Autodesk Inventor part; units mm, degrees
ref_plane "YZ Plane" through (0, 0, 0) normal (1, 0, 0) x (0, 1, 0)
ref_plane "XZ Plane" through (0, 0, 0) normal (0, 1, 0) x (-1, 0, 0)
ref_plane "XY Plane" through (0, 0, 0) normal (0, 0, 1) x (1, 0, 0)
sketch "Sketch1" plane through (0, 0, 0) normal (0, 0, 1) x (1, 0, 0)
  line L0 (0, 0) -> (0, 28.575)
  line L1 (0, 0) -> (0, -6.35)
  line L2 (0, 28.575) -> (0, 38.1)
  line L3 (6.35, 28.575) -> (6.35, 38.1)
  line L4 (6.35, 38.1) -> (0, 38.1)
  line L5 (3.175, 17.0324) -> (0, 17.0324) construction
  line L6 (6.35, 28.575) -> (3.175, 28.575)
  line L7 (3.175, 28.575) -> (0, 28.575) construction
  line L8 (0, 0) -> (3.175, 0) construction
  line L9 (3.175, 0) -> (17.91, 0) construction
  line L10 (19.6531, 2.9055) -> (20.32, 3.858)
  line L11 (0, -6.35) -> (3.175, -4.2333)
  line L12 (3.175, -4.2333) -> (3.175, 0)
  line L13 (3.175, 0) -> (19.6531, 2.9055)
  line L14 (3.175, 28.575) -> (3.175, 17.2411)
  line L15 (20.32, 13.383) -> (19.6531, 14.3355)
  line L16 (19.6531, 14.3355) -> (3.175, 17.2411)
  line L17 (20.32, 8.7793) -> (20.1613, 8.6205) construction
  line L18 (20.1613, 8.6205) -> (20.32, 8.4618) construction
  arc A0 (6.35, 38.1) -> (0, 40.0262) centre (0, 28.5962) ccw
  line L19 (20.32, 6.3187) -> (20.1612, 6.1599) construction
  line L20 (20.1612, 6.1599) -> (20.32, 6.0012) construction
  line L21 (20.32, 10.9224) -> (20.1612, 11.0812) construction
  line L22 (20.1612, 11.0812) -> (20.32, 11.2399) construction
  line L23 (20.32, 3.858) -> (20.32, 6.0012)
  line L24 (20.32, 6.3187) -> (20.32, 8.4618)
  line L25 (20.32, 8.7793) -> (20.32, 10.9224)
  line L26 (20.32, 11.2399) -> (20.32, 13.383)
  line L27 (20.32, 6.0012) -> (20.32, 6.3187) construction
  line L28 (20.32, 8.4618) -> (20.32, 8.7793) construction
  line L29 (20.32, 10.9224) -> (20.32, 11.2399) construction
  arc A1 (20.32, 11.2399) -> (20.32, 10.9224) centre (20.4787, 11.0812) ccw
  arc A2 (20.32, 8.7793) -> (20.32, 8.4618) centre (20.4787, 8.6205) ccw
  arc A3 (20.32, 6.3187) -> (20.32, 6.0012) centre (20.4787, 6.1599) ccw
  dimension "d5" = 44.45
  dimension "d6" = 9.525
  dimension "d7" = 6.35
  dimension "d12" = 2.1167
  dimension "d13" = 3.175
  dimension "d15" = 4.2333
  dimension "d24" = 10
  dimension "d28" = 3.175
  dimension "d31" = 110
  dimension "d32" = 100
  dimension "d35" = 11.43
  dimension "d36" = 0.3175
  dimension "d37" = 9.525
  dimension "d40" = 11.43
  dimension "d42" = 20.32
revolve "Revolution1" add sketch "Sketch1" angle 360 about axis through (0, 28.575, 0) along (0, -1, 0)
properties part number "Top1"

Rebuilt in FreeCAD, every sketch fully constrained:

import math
import FreeCAD as App
import Part
import Sketcher

V = App.Vector
Q = App.Units.Quantity

doc = App.newDocument("Part")
body = doc.addObject("PartDesign::Body", "Body")

# Sketch on XY plane
sketch1 = body.newObject("Sketcher::SketchObject", "Sketch")
sketch1.AttachmentSupport = (doc.getObject("XY_Plane"), [""])
sketch1.MapMode = "FlatFace"
sketch1.addGeometry([
    Part.LineSegment(V(0, 38.1, 0), V(0, -6.35, 0)),  # 0
    Part.LineSegment(V(0, -6.35, 0), V(3.17, -4.23, 0)),  # 1
    Part.LineSegment(V(3.17, -4.23, 0), V(3.17, 0, 0)),  # 2
    Part.LineSegment(V(3.17, 0, 0), V(19.65, 2.91, 0)),  # 3
    Part.LineSegment(V(19.65, 2.91, 0), V(20.32, 3.86, 0)),  # 4
    Part.LineSegment(V(20.32, 3.86, 0), V(20.32, 6, 0)),  # 5
    Part.ArcOfCircle(Part.Circle(V(20.48, 6.16, 0), V(0, 0, 1), 0.22), math.radians(135), math.radians(225)),  # 6
    Part.LineSegment(V(20.32, 6.32, 0), V(20.32, 8.46, 0)),  # 7
    Part.ArcOfCircle(Part.Circle(V(20.48, 8.62, 0), V(0, 0, 1), 0.22), math.radians(135), math.radians(225)),  # 8
    Part.LineSegment(V(20.32, 8.78, 0), V(20.32, 10.92, 0)),  # 9
    Part.ArcOfCircle(Part.Circle(V(20.48, 11.08, 0), V(0, 0, 1), 0.22), math.radians(135), math.radians(225)),  # 10
    Part.LineSegment(V(20.32, 11.24, 0), V(20.32, 13.38, 0)),  # 11
    Part.LineSegment(V(20.32, 13.38, 0), V(19.65, 14.34, 0)),  # 12
    Part.LineSegment(V(19.65, 14.34, 0), V(3.17, 17.24, 0)),  # 13
    Part.LineSegment(V(3.17, 17.24, 0), V(3.17, 28.57, 0)),  # 14
    Part.LineSegment(V(3.17, 28.57, 0), V(6.35, 28.57, 0)),  # 15
    Part.LineSegment(V(6.35, 28.57, 0), V(6.35, 38.1, 0)),  # 16
    Part.LineSegment(V(6.35, 38.1, 0), V(0, 38.1, 0)),  # 17
], False)
sketch1.addConstraint([
    Sketcher.Constraint("Coincident", 0, 2, 1, 1),
    Sketcher.Constraint("Coincident", 1, 2, 2, 1),
    Sketcher.Constraint("Coincident", 2, 2, 3, 1),
    Sketcher.Constraint("Coincident", 3, 2, 4, 1),
    Sketcher.Constraint("Coincident", 4, 2, 5, 1),
    Sketcher.Constraint("Coincident", 5, 2, 6, 2),
    Sketcher.Constraint("Coincident", 6, 1, 7, 1),
    Sketcher.Constraint("Coincident", 7, 2, 8, 2),
    Sketcher.Constraint("Coincident", 8, 1, 9, 1),
    Sketcher.Constraint("Coincident", 9, 2, 10, 2),
    Sketcher.Constraint("Coincident", 10, 1, 11, 1),
    Sketcher.Constraint("Coincident", 11, 2, 12, 1),
    Sketcher.Constraint("Coincident", 12, 2, 13, 1),
    Sketcher.Constraint("Coincident", 13, 2, 14, 1),
    Sketcher.Constraint("Coincident", 14, 2, 15, 1),
    Sketcher.Constraint("Coincident", 15, 2, 16, 1),
    Sketcher.Constraint("Coincident", 16, 2, 17, 1),
    Sketcher.Constraint("Coincident", 17, 2, 0, 1),
    Sketcher.Constraint("Vertical", 0),
    Sketcher.Constraint("Vertical", 2),
    Sketcher.Constraint("Vertical", 5),
    Sketcher.Constraint("Vertical", 7),
    Sketcher.Constraint("Vertical", 9),
    Sketcher.Constraint("Vertical", 11),
    Sketcher.Constraint("Vertical", 14),
    Sketcher.Constraint("Horizontal", 15),
    Sketcher.Constraint("Vertical", 16),
    Sketcher.Constraint("Horizontal", 17),
    Sketcher.Constraint("Equal", 6, 8),
    Sketcher.Constraint("Equal", 8, 10),
    Sketcher.Constraint("PointOnObject", 0, 2, -2),
    Sketcher.Constraint("PointOnObject", 2, 2, -1),
    Sketcher.Constraint("Vertical", 6, 3, 8, 3),
    Sketcher.Constraint("Vertical", 8, 3, 10, 3),
    Sketcher.Constraint("Vertical", 5, 2, 6, 1),
    Sketcher.Constraint("Vertical", 7, 2, 8, 1),
    Sketcher.Constraint("Vertical", 9, 2, 10, 1),
    Sketcher.Constraint("Vertical", 3, 2, 12, 2),
    Sketcher.Constraint("Vertical", 2, 2, 13, 2),
    Sketcher.Constraint("Equal", 5, 7),
    Sketcher.Constraint("Equal", 7, 9),
    Sketcher.Constraint("Equal", 9, 11),
    Sketcher.Constraint("Equal", 4, 12),
    Sketcher.Constraint("Equal", 3, 13),
    Sketcher.Constraint("Angle", 3, Q("10 deg")),
    Sketcher.Constraint("DistanceX", 17, 2, 17, 1, Q("0.25 in")),
    Sketcher.Constraint("DistanceY", 0, 2, 0, 1, Q("1.75 in")),
    Sketcher.Constraint("DistanceX", -1, 1, 4, 2, Q("0.8 in")),
    Sketcher.Constraint("DistanceX", 15, 1, 15, 2, Q("0.125 in")),
    Sketcher.Constraint("DistanceY", 16, 1, 16, 2, Q("0.375 in")),
    Sketcher.Constraint("DistanceY", 0, 2, -1, 1, Q("0.25 in")),
    Sketcher.Constraint("DistanceY", 2, 1, 2, 2, 4.2333),
    Sketcher.Constraint("DistanceY", 5, 2, 10, 3, Q("0.2 in")),
    Sketcher.Constraint("DistanceY", 5, 2, 6, 1, Q("0.0125 in")),
    Sketcher.Constraint("Radius", 6, 0.2245),
    Sketcher.Constraint("DistanceY", 3, 2, 8, 3, Q("0.225 in")),
    Sketcher.Constraint("DistanceY", 14, 1, 14, 2, 11.334),
])
revolution = body.newObject("PartDesign::Revolution", "Revolution")
revolution.Profile = sketch1
revolution.ReferenceAxis = (sketch1, ["V_Axis"])
revolution.Angle = 360

doc.recompute()
